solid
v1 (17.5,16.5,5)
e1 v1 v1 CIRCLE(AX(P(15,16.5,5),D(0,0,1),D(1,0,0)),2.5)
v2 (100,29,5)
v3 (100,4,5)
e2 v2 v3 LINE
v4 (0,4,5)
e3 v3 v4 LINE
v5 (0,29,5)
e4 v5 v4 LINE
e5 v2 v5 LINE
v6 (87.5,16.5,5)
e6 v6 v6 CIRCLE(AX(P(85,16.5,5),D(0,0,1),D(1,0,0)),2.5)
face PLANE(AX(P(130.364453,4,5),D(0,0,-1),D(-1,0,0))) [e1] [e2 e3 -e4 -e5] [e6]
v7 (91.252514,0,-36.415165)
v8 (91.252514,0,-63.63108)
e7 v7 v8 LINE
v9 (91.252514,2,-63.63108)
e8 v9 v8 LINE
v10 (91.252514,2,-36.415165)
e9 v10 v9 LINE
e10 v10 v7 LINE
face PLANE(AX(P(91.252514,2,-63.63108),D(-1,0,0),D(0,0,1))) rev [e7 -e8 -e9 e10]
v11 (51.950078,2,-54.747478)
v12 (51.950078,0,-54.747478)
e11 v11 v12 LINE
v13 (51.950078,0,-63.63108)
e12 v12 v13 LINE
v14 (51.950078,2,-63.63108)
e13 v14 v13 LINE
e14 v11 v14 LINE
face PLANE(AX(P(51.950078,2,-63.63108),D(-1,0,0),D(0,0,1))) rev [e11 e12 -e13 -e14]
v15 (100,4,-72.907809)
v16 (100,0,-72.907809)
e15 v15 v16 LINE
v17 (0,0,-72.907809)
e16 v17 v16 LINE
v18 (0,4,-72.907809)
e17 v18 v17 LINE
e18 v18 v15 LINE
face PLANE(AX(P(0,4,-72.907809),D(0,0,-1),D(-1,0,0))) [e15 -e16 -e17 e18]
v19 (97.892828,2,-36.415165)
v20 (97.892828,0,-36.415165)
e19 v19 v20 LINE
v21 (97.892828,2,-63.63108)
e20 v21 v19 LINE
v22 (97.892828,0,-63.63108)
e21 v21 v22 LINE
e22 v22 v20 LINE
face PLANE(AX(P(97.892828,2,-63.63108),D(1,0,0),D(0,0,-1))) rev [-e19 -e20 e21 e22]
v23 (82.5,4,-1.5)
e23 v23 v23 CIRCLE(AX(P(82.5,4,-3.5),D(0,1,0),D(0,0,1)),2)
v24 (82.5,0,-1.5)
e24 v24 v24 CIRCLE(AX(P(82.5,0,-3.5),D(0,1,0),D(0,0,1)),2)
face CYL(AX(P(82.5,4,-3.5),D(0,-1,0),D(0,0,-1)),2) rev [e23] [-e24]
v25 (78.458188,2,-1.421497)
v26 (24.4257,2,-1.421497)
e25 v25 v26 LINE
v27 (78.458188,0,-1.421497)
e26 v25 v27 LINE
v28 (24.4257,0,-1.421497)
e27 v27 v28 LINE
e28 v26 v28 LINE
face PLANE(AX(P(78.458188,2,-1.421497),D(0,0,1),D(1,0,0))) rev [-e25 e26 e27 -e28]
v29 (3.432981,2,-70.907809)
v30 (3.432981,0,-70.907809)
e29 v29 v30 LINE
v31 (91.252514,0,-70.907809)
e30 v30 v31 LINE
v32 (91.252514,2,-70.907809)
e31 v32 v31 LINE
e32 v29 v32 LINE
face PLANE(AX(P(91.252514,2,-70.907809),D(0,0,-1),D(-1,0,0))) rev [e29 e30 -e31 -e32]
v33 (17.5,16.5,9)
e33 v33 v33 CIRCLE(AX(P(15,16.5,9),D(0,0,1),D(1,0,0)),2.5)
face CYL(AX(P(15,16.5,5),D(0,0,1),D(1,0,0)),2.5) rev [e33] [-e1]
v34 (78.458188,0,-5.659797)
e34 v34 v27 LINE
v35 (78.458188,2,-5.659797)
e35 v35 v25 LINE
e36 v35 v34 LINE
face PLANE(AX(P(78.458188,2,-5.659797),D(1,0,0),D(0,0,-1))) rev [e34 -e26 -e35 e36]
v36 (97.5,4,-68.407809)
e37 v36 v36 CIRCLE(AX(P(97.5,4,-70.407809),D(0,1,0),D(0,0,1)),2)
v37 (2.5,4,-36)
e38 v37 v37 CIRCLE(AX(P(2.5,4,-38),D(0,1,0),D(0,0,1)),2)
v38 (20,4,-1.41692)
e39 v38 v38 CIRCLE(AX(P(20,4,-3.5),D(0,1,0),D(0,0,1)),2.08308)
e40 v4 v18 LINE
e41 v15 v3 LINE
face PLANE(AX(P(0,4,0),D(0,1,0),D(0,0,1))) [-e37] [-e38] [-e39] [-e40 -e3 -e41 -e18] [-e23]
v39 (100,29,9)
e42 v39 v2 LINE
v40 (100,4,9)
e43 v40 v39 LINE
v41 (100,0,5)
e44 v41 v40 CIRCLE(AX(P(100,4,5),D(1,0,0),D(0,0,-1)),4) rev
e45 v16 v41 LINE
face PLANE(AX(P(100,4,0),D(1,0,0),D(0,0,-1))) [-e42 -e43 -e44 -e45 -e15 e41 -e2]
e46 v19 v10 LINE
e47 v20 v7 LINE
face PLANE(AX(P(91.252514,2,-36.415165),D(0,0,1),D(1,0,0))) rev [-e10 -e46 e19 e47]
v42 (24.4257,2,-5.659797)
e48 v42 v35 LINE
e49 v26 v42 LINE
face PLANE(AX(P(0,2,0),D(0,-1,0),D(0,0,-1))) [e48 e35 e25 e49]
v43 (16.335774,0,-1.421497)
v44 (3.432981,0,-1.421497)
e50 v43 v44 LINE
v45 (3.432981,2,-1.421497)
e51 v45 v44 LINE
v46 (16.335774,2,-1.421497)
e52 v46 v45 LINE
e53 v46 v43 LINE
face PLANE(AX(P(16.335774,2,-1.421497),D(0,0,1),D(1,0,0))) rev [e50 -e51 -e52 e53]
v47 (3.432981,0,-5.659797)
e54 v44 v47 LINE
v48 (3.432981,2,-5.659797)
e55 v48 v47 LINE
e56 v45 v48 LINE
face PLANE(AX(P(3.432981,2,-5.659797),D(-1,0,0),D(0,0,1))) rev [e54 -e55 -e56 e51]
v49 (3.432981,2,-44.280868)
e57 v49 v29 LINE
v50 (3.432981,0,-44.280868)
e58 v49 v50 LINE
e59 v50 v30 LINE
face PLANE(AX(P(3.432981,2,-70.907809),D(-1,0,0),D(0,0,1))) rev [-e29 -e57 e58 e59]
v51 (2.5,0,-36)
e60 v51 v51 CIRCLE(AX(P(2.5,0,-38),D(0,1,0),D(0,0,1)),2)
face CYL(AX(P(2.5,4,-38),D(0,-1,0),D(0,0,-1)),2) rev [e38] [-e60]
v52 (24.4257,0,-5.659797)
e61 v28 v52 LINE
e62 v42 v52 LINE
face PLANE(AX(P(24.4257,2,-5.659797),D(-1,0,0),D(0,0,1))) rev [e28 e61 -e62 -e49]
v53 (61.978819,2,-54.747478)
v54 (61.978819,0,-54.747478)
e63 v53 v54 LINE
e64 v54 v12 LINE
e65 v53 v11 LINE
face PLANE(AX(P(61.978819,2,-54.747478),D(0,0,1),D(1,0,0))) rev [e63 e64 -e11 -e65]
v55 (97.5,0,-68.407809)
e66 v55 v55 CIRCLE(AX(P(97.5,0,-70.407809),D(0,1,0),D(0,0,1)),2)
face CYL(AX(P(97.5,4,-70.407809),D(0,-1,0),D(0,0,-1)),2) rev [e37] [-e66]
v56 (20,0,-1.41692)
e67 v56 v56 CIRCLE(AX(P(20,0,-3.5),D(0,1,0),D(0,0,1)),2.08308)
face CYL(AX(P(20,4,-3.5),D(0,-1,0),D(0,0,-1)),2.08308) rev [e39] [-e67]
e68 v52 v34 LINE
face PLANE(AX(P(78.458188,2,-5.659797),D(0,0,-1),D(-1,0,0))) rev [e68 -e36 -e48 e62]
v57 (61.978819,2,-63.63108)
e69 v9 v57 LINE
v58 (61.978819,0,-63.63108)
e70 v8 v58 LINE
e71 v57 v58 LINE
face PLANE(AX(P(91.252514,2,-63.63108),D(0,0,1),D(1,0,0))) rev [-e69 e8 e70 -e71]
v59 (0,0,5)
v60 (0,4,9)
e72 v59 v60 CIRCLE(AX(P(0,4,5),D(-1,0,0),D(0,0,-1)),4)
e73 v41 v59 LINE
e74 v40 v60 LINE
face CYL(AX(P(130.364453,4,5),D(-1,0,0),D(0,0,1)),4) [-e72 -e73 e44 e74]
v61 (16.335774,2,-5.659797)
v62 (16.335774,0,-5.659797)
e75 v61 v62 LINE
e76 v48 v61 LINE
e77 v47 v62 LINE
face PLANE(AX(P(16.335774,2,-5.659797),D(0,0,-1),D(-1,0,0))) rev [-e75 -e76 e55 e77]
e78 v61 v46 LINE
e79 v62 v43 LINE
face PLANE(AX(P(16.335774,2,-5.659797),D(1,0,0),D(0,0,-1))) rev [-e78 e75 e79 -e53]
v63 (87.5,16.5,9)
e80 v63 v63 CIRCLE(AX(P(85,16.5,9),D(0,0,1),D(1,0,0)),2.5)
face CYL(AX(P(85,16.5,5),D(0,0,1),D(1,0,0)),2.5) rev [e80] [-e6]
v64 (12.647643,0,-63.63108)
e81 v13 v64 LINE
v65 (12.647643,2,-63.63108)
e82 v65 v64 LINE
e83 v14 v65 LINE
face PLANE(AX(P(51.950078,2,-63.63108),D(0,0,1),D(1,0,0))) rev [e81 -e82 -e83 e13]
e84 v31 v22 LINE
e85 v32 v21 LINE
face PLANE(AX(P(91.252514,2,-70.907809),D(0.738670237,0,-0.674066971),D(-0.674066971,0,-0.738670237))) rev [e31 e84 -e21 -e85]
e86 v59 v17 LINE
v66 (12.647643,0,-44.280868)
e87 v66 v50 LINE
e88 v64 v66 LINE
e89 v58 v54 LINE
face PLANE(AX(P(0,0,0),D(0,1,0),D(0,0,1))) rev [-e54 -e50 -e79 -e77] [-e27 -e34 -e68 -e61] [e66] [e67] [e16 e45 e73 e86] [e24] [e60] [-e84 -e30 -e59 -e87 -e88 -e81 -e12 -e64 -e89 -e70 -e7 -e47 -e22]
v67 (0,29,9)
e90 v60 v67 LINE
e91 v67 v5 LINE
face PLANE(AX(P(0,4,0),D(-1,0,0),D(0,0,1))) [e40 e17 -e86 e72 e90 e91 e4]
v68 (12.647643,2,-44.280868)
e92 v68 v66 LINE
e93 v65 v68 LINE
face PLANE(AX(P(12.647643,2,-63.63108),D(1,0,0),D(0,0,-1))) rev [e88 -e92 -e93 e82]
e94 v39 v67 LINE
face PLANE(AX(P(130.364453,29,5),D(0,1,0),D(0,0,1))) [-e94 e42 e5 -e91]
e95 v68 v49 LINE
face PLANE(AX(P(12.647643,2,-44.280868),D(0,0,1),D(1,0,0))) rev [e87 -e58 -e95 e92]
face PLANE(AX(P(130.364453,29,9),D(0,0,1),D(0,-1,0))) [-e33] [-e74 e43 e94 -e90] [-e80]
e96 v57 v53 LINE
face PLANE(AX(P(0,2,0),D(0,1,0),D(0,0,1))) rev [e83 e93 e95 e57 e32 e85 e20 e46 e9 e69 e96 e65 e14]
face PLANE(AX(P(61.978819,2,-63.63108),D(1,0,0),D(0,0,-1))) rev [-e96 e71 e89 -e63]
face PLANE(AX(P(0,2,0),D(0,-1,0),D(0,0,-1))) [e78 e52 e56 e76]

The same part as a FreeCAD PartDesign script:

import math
import FreeCAD as App
import Part
import Sketcher
Q = App.Units.Quantity


def add_polygon(sketch, points):
    """Adds a closed chain of lines whose ends are joined by coincident constraints."""
    first, n = sketch.GeometryCount, len(points)
    for a, b in zip(points, points[1:] + points[:1]):
        sketch.addGeometry(Part.LineSegment(App.Vector(*a, 0), App.Vector(*b, 0)), False)
    for i in range(n):
        sketch.addConstraint(Sketcher.Constraint("Coincident", first + i, 2, first + (i + 1) % n, 1))

doc = App.newDocument("Part")
params = doc.addObject("Spreadsheet::Sheet", "Params")
for row, (alias, value) in enumerate([
    ("sketch1_diameter", "4 mm"),
    ("sketch1_width", "100 mm"),
    ("pad1_length", "4 mm"),
    ("sketch2_radius", "4 mm"),
    ("sketch2_width", "25 mm"),
    ("sketch2_height", "5 mm"),
    ("pad2_length", "100 mm"),
    ("sketch3_diameter", "5 mm"),
    ("pocket1_length", "4 mm"),
    ("pocket2_length", "2 mm"),
], start=1):
    params.set(f"A{row}", alias)
    params.set(f"B{row}", "=" + value)
    params.setAlias(f"B{row}", alias)

body = doc.addObject("PartDesign::Body", "Body")

sketch1 = doc.addObject("Sketcher::SketchObject", "Sketch")
body.addObject(sketch1)
sketch1.AttachmentSupport = (doc.XZ_Plane, [""])
sketch1.MapMode = "FlatFace"
add_polygon(sketch1, [(0, -72.9), (0, 0), (100, 0), (100, -72.9)])
sketch1.addGeometry(Part.Circle(App.Vector(20, -3.5, 0), App.Vector(0, 0, 1), 2.1), False)
sketch1.addGeometry(Part.Circle(App.Vector(82.5, -3.5, 0), App.Vector(0, 0, 1), 2), False)
sketch1.addGeometry(Part.Circle(App.Vector(2.5, -38, 0), App.Vector(0, 0, 1), 2), False)
sketch1.addGeometry(Part.Circle(App.Vector(97.5, -70.4, 0), App.Vector(0, 0, 1), 2), False)
sketch1.addConstraint([
    Sketcher.Constraint("Vertical", 0),
    Sketcher.Constraint("Horizontal", 1),
    Sketcher.Constraint("Vertical", 2),
    Sketcher.Constraint("Horizontal", 3),
    Sketcher.Constraint("Coincident", 0, 2, -1, 1),
    Sketcher.Constraint("Equal", 5, 6),
    Sketcher.Constraint("Equal", 6, 7),
    Sketcher.Constraint("Horizontal", 4, 3, 5, 3),
    Sketcher.Constraint("Diameter", 5, Q("4 mm")),
    Sketcher.Constraint("DistanceX", 1, 1, 1, 2, Q("100 mm")),
    Sketcher.Constraint("DistanceX", -1, 1, 4, 3, Q("20 mm")),
    Sketcher.Constraint("DistanceY", 6, 3, -1, 1, Q("38 mm")),
    Sketcher.Constraint("DistanceX", 6, 3, 5, 3, Q("80 mm")),
    Sketcher.Constraint("DistanceX", 5, 3, 7, 3, Q("15 mm")),
    Sketcher.Constraint("DistanceY", 4, 3, -1, 1, Q("3.5 mm")),
    Sketcher.Constraint("DistanceX", -1, 1, 5, 3, Q("82.5 mm")),
    Sketcher.Constraint("DistanceY", 2, 2, 7, 3, Q("2.5 mm")),
    Sketcher.Constraint("Diameter", 4, Q("4.16616 mm")),
    Sketcher.Constraint("DistanceY", 0, 1, 0, 2, Q("72.907809 mm")),
])
sketch1.setExpression("Constraints[12]", "Params.sketch1_diameter")
sketch1.setExpression("Constraints[13]", "Params.sketch1_width")
pad1 = doc.addObject("PartDesign::Pad", "Pad")
body.addObject(pad1)
pad1.Profile = sketch1
pad1.setExpression("Length", "Params.pad1_length")
pad1.Reversed = True

sketch2 = doc.addObject("Sketcher::SketchObject", "Sketch001")
body.addObject(sketch2)
sketch2.AttachmentSupport = (doc.YZ_Plane, [""])
sketch2.MapMode = "FlatFace"
sketch2.addGeometry([
    Part.LineSegment(App.Vector(4, 5, 0), App.Vector(4, 0, 0)),
    Part.LineSegment(App.Vector(4, 0, 0), App.Vector(0, 0, 0)),
    Part.LineSegment(App.Vector(0, 0, 0), App.Vector(0, 5, 0)),
    Part.ArcOfCircle(Part.Circle(App.Vector(4, 5, 0), App.Vector(0, 0, 1), 4), math.radians(90), math.radians(180)),
    Part.LineSegment(App.Vector(4, 9, 0), App.Vector(29, 9, 0)),
    Part.LineSegment(App.Vector(29, 9, 0), App.Vector(29, 5, 0)),
    Part.LineSegment(App.Vector(29, 5, 0), App.Vector(4, 5, 0)),
], False)
sketch2.addConstraint([
    Sketcher.Constraint("Coincident", 0, 2, 1, 1),
    Sketcher.Constraint("Coincident", 1, 2, 2, 1),
    Sketcher.Constraint("Tangent", 2, 2, 3, 2),
    Sketcher.Constraint("Tangent", 3, 1, 4, 1),
    Sketcher.Constraint("Coincident", 4, 2, 5, 1),
    Sketcher.Constraint("Coincident", 5, 2, 6, 1),
    Sketcher.Constraint("Coincident", 6, 2, 0, 1),
    Sketcher.Constraint("Vertical", 0),
    Sketcher.Constraint("Horizontal", 1),
    Sketcher.Constraint("Vertical", 2),
    Sketcher.Constraint("Horizontal", 4),
    Sketcher.Constraint("Vertical", 5),
    Sketcher.Constraint("Horizontal", 6),
    Sketcher.Constraint("Coincident", 1, 2, -1, 1),
    Sketcher.Constraint("Coincident", 6, 2, 3, 3),
    Sketcher.Constraint("Radius", 3, Q("4 mm")),
    Sketcher.Constraint("DistanceX", 4, 1, 4, 2, Q("25 mm")),
    Sketcher.Constraint("DistanceY", 0, 2, 0, 1, Q("5 mm")),
])
sketch2.setExpression("Constraints[15]", "Params.sketch2_radius")
sketch2.setExpression("Constraints[16]", "Params.sketch2_width")
sketch2.setExpression("Constraints[17]", "Params.sketch2_height")
pad2 = doc.addObject("PartDesign::Pad", "Pad001")
body.addObject(pad2)
pad2.Profile = sketch2
pad2.setExpression("Length", "Params.pad2_length")

sketch3 = doc.addObject("Sketcher::SketchObject", "Sketch002")
body.addObject(sketch3)
sketch3.AttachmentSupport = (doc.XY_Plane, [""])
sketch3.MapMode = "FlatFace"
sketch3.AttachmentOffset = App.Placement(App.Vector(0, 0, 9), App.Rotation())
sketch3.addGeometry([
    Part.Circle(App.Vector(15, 16.5, 0), App.Vector(0, 0, 1), 2.5),
    Part.Circle(App.Vector(85, 16.5, 0), App.Vector(0, 0, 1), 2.5),
], False)
sketch3.addConstraint([
    Sketcher.Constraint("Equal", 0, 1),
    Sketcher.Constraint("Horizontal", 0, 3, 1, 3),
    Sketcher.Constraint("Diameter", 0, Q("5 mm")),
    Sketcher.Constraint("DistanceX", -1, 1, 0, 3, Q("15 mm")),
    Sketcher.Constraint("DistanceX", -1, 1, 1, 3, Q("85 mm")),
    Sketcher.Constraint("DistanceY", -1, 1, 0, 3, Q("16.5 mm")),
])
sketch3.setExpression("Constraints[2]", "Params.sketch3_diameter")
pocket1 = doc.addObject("PartDesign::Pocket", "Pocket")
body.addObject(pocket1)
pocket1.Profile = sketch3
pocket1.setExpression("Length", "Params.pocket1_length")

sketch4 = doc.addObject("Sketcher::SketchObject", "Sketch003")
body.addObject(sketch4)
sketch4.AttachmentSupport = (doc.XZ_Plane, [""])
sketch4.MapMode = "FlatFace"
add_polygon(sketch4, [(52, -63.6), (12.6, -63.6), (12.6, -44.3), (3.4, -44.3), (3.4, -70.9), (91.3, -70.9), (97.9, -63.6), (97.9, -36.4), (91.3, -36.4), (91.3, -63.6), (62, -63.6), (62, -54.7), (52, -54.7)])
add_polygon(sketch4, [(24.4, -1.4), (24.4, -5.7), (78.5, -5.7), (78.5, -1.4)])
add_polygon(sketch4, [(3.4, -1.4), (3.4, -5.7), (16.3, -5.7), (16.3, -1.4)])
sketch4.addConstraint([
    Sketcher.Constraint("Horizontal", 0),
    Sketcher.Constraint("Vertical", 1),
    Sketcher.Constraint("Horizontal", 2),
    Sketcher.Constraint("Vertical", 3),
    Sketcher.Constraint("Horizontal", 4),
    Sketcher.Constraint("Vertical", 6),
    Sketcher.Constraint("Horizontal", 7),
    Sketcher.Constraint("Vertical", 8),
    Sketcher.Constraint("Horizontal", 9),
    Sketcher.Constraint("Vertical", 10),
    Sketcher.Constraint("Horizontal", 11),
    Sketcher.Constraint("Vertical", 12),
    Sketcher.Constraint("Vertical", 13),
    Sketcher.Constraint("Horizontal", 14),
    Sketcher.Constraint("Vertical", 15),
    Sketcher.Constraint("Horizontal", 16),
    Sketcher.Constraint("Vertical", 17),
    Sketcher.Constraint("Horizontal", 18),
    Sketcher.Constraint("Vertical", 19),
    Sketcher.Constraint("Horizontal", 20),
    Sketcher.Constraint("Horizontal", 0, 2, 5, 2),
    Sketcher.Constraint("Horizontal", 5, 2, 8, 2),
    Sketcher.Constraint("Horizontal", 14, 2, 17, 2),
    Sketcher.Constraint("Horizontal", 16, 2, 19, 2),
    Sketcher.Constraint("Vertical", 4, 2, 7, 2),
    Sketcher.Constraint("Vertical", 3, 2, 17, 2),
    Sketcher.Constraint("DistanceY", 13, 2, 13, 1, Q("4.2383 mm")),
    Sketcher.Constraint("DistanceX", 11, 2, 11, 1, Q("10.028741 mm")),
    Sketcher.Constraint("DistanceY", 1, 1, 1, 2, Q("19.350212 mm")),
    Sketcher.Constraint("DistanceY", 3, 2, 3, 1, Q("26.62694 mm")),
    Sketcher.Constraint("DistanceX", -1, 1, 13, 2, Q("24.4257 mm")),
    Sketcher.Constraint("Distance", 5, Q("9.851119 mm")),
    Sketcher.Constraint("DistanceX", 0, 2, 0, 1, Q("39.302435 mm")),
    Sketcher.Constraint("DistanceX", 2, 2, 2, 1, Q("9.214662 mm")),
    Sketcher.Constraint("DistanceX", 4, 1, 4, 2, Q("87.819533 mm")),
    Sketcher.Constraint("DistanceX", 14, 1, 14, 2, Q("54.032487 mm")),
    Sketcher.Constraint("DistanceX", 18, 1, 18, 2, Q("12.902794 mm")),
    Sketcher.Constraint("DistanceY", 6, 1, 6, 2, Q("27.215915 mm")),
    Sketcher.Constraint("DistanceY", 10, 1, 10, 2, Q("8.883602 mm")),
    Sketcher.Constraint("DistanceY", 0, 2, -1, 1, Q("63.63108 mm")),
    Sketcher.Constraint("DistanceX", -1, 1, 2, 2, Q("3.432981 mm")),
    Sketcher.Constraint("DistanceY", 1, 2, 13, 2, Q("38.621071 mm")),
])
pocket2 = doc.addObject("PartDesign::Pocket", "Pocket001")
body.addObject(pocket2)
pocket2.Profile = sketch4
pocket2.setExpression("Length", "Params.pocket2_length")

doc.recompute()
